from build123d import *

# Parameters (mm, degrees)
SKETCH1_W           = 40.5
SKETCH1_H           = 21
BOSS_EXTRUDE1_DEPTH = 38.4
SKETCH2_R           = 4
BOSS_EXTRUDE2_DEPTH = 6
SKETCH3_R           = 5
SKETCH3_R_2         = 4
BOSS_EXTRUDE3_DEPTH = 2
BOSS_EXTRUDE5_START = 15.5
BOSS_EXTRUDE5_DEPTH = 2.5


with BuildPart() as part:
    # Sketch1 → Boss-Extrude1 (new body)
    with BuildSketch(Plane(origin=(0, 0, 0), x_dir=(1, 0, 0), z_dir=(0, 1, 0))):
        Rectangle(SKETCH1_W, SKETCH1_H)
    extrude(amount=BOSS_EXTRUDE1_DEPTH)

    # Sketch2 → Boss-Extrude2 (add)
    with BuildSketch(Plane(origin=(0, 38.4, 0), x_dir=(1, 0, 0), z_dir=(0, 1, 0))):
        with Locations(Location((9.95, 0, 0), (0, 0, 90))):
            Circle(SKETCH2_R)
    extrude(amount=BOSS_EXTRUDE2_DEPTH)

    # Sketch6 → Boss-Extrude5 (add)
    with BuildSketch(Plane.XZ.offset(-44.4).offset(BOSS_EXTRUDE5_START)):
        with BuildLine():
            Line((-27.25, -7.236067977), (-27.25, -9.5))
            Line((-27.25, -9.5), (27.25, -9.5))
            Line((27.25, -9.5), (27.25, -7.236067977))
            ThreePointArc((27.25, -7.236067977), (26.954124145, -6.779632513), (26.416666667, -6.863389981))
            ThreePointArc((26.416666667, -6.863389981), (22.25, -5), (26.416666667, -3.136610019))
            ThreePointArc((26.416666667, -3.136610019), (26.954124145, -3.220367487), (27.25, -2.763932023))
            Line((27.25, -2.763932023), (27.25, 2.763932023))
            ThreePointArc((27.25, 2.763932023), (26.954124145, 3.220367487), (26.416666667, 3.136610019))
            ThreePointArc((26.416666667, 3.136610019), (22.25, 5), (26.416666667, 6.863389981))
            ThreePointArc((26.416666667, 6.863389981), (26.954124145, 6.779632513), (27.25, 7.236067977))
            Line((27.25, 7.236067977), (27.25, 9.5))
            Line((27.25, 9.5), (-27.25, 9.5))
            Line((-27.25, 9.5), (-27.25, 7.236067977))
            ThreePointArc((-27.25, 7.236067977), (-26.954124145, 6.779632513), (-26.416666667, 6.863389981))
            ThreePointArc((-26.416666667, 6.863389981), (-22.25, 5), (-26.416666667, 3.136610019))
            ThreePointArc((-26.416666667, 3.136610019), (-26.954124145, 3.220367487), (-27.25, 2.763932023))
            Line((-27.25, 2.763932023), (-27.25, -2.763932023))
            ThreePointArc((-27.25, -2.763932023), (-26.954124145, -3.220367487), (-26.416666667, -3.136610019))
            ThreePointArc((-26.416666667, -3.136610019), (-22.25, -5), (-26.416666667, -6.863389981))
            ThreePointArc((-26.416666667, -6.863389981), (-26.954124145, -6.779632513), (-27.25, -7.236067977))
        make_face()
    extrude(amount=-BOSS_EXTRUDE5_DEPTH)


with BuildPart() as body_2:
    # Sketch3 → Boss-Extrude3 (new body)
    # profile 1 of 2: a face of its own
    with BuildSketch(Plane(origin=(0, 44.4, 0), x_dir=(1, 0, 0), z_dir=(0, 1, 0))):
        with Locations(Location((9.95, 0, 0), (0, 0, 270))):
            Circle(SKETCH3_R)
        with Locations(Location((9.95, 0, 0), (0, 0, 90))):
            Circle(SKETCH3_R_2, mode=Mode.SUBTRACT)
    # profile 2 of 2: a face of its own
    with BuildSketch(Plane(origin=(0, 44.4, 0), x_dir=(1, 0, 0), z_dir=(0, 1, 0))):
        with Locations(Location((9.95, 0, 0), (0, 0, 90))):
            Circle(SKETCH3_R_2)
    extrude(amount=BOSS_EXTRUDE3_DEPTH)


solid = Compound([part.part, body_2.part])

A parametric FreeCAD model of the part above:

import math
import FreeCAD as App
import Part
import Sketcher
from FreeCAD import Vector

doc = App.newDocument("Part")
body = doc.addObject("PartDesign::Body", "Body")

sketch1 = doc.addObject("Sketcher::SketchObject", "Sketch")
body.addObject(sketch1)
sketch1.AttachmentSupport = (doc.XZ_Plane, [""])
sketch1.MapMode = "FlatFace"
sketch1.addGeometry([
    Part.LineSegment(Vector(-20, -10, 0), Vector(-20, 10, 0)),
    Part.LineSegment(Vector(-20, 10, 0), Vector(20, 10, 0)),
    Part.LineSegment(Vector(20, 10, 0), Vector(20, -10, 0)),
    Part.LineSegment(Vector(20, -10, 0), Vector(-20, -10, 0)),
], False)
sketch1.addConstraint([
    Sketcher.Constraint("Coincident", 0, 2, 1, 1),
    Sketcher.Constraint("Coincident", 1, 2, 2, 1),
    Sketcher.Constraint("Coincident", 2, 2, 3, 1),
    Sketcher.Constraint("Coincident", 3, 2, 0, 1),
    Sketcher.Constraint("Vertical", 0),
    Sketcher.Constraint("Horizontal", 1),
    Sketcher.Constraint("Vertical", 2),
    Sketcher.Constraint("Horizontal", 3),
    Sketcher.Constraint("Symmetric", 0, 2, 2, 2, -1, 1),
    Sketcher.Constraint("DistanceY", 0, 1, 0, 2, 21.0),
    Sketcher.Constraint("DistanceX", 1, 1, 1, 2, 40.5),
])
pad1 = doc.addObject("PartDesign::Pad", "Pad")
body.addObject(pad1)
pad1.Profile = sketch1
pad1.Length = 38.4
pad1.Reversed = True

sketch2 = doc.addObject("Sketcher::SketchObject", "Sketch001")
body.addObject(sketch2)
sketch2.AttachmentSupport = (doc.XZ_Plane, [""])
sketch2.MapMode = "FlatFace"
sketch2.AttachmentOffset = App.Placement(Vector(0, 0, -38.4), App.Rotation())
sketch2.addGeometry(Part.Circle(Vector(9.9, 0, 0), Vector(0, 0, 1), 4), False)
sketch2.addConstraint([
    Sketcher.Constraint("PointOnObject", 0, 3, -1),
    Sketcher.Constraint("Diameter", 0, 8.0),
    Sketcher.Constraint("DistanceX", -1, 1, 0, 3, 9.95),
])
pad2 = doc.addObject("PartDesign::Pad", "Pad001")
body.addObject(pad2)
pad2.Profile = sketch2
pad2.Length = 6
pad2.Reversed = True

sketch3 = doc.addObject("Sketcher::SketchObject", "Sketch002")
body.addObject(sketch3)
sketch3.AttachmentSupport = (doc.XZ_Plane, [""])
sketch3.MapMode = "FlatFace"
sketch3.AttachmentOffset = App.Placement(Vector(0, 0, -28.9), App.Rotation())
sketch3.addGeometry([
    Part.LineSegment(Vector(-27.2, -7.2, 0), Vector(-27.2, -9.5, 0)),
    Part.LineSegment(Vector(-27.2, -9.5, 0), Vector(27.2, -9.5, 0)),
    Part.LineSegment(Vector(27.2, -9.5, 0), Vector(27.2, -7.2, 0)),
    Part.ArcOfCircle(Part.Circle(Vector(26.8, -7.2, 0), Vector(0, 0, 1), 0.5), math.radians(0), math.radians(132)),
    Part.ArcOfCircle(Part.Circle(Vector(24.8, -5, 0), Vector(0, 0, 1), 2.5), math.radians(48), math.radians(312)),
    Part.ArcOfCircle(Part.Circle(Vector(26.8, -2.8, 0), Vector(0, 0, 1), 0.5), math.radians(-132), math.radians(0)),
    Part.LineSegment(Vector(27.2, -2.8, 0), Vector(27.2, 2.8, 0)),
    Part.ArcOfCircle(Part.Circle(Vector(26.8, 2.8, 0), Vector(0, 0, 1), 0.5), math.radians(0), math.radians(132)),
    Part.ArcOfCircle(Part.Circle(Vector(24.8, 5, 0), Vector(0, 0, 1), 2.5), math.radians(48), math.radians(312)),
    Part.ArcOfCircle(Part.Circle(Vector(26.8, 7.2, 0), Vector(0, 0, 1), 0.5), math.radians(-132), math.radians(0)),
    Part.LineSegment(Vector(27.2, 7.2, 0), Vector(27.2, 9.5, 0)),
    Part.LineSegment(Vector(27.2, 9.5, 0), Vector(-27.2, 9.5, 0)),
    Part.LineSegment(Vector(-27.2, 9.5, 0), Vector(-27.2, 7.2, 0)),
    Part.ArcOfCircle(Part.Circle(Vector(-26.8, 7.2, 0), Vector(0, 0, 1), 0.5), math.radians(-180), math.radians(-48)),
    Part.ArcOfCircle(Part.Circle(Vector(-24.8, 5, 0), Vector(0, 0, 1), 2.5), math.radians(-132), math.radians(132)),
    Part.ArcOfCircle(Part.Circle(Vector(-26.8, 2.8, 0), Vector(0, 0, 1), 0.5), math.radians(48), math.radians(180)),
    Part.LineSegment(Vector(-27.2, 2.8, 0), Vector(-27.2, -2.8, 0)),
    Part.ArcOfCircle(Part.Circle(Vector(-26.8, -2.8, 0), Vector(0, 0, 1), 0.5), math.radians(-180), math.radians(-48)),
    Part.ArcOfCircle(Part.Circle(Vector(-24.8, -5, 0), Vector(0, 0, 1), 2.5), math.radians(-132), math.radians(132)),
    Part.ArcOfCircle(Part.Circle(Vector(-26.8, -7.2, 0), Vector(0, 0, 1), 0.5), math.radians(48), math.radians(180)),
], False)
sketch3.addConstraint([
    Sketcher.Constraint("Coincident", 0, 2, 1, 1),
    Sketcher.Constraint("Coincident", 1, 2, 2, 1),
    Sketcher.Constraint("Tangent", 2, 2, 3, 1),
    Sketcher.Constraint("Tangent", 3, 2, 4, 2),
    Sketcher.Constraint("Tangent", 4, 1, 5, 1),
    Sketcher.Constraint("Tangent", 5, 2, 6, 1),
    Sketcher.Constraint("Tangent", 6, 2, 7, 1),
    Sketcher.Constraint("Tangent", 7, 2, 8, 2),
    Sketcher.Constraint("Tangent", 8, 1, 9, 1),
    Sketcher.Constraint("Tangent", 9, 2, 10, 1),
    Sketcher.Constraint("Coincident", 10, 2, 11, 1),
    Sketcher.Constraint("Coincident", 11, 2, 12, 1),
    Sketcher.Constraint("Tangent", 12, 2, 13, 1),
    Sketcher.Constraint("Tangent", 13, 2, 14, 2),
    Sketcher.Constraint("Tangent", 14, 1, 15, 1),
    Sketcher.Constraint("Tangent", 15, 2, 16, 1),
    Sketcher.Constraint("Tangent", 16, 2, 17, 1),
    Sketcher.Constraint("Tangent", 17, 2, 18, 2),
    Sketcher.Constraint("Tangent", 18, 1, 19, 1),
    Sketcher.Constraint("Tangent", 19, 2, 0, 1),
    Sketcher.Constraint("Vertical", 0),
    Sketcher.Constraint("Horizontal", 1),
    Sketcher.Constraint("Vertical", 2),
    Sketcher.Constraint("Vertical", 6),
    Sketcher.Constraint("Vertical", 10),
    Sketcher.Constraint("Horizontal", 11),
    Sketcher.Constraint("Vertical", 12),
    Sketcher.Constraint("Vertical", 16),
    Sketcher.Constraint("Equal", 3, 5),
    Sketcher.Constraint("Equal", 5, 7),
    Sketcher.Constraint("Equal", 4, 8),
    Sketcher.Constraint("Equal", 7, 9),
    Sketcher.Constraint("Equal", 9, 13),
    Sketcher.Constraint("Equal", 8, 14),
    Sketcher.Constraint("Equal", 13, 15),
    Sketcher.Constraint("Equal", 15, 17),
    Sketcher.Constraint("Equal", 14, 18),
    Sketcher.Constraint("Equal", 17, 19),
    Sketcher.Constraint("Symmetric", 3, 3, 13, 3, -1, 1),
    Sketcher.Constraint("Symmetric", 5, 3, 15, 3, -1, 1),
    Sketcher.Constraint("Symmetric", 8, 3, 18, 3, -1, 1),
    Sketcher.Constraint("Symmetric", 0, 2, 10, 2, -1, 1),
    Sketcher.Constraint("Symmetric", 9, 3, 13, 3, -2),
    Sketcher.Constraint("Horizontal", 8, 3, 14, 3),
    Sketcher.Constraint("Vertical", 3, 3, 5, 3),
    Sketcher.Constraint("Radius", 3, 0.5),
    Sketcher.Constraint("Radius", 4, 2.5),
    Sketcher.Constraint("DistanceX", 1, 1, 1, 2, 54.5),
    Sketcher.Constraint("DistanceY", 4, 3, -1, 1, 5.0),
    Sketcher.Constraint("DistanceX", 4, 3, 3, 3, 2.0),
    Sketcher.Constraint("DistanceY", 0, 2, -1, 1, 9.5),
])
pad3 = doc.addObject("PartDesign::Pad", "Pad002")
body.addObject(pad3)
pad3.Profile = sketch3
pad3.Length = 2.5
pad3.Reversed = True
body2 = doc.addObject("PartDesign::Body", "Body001")

sketch4 = doc.addObject("Sketcher::SketchObject", "Sketch003")
body2.addObject(sketch4)
sketch4.AttachmentSupport = (doc.getObject("XZ_Plane001"), [""])
sketch4.MapMode = "FlatFace"
sketch4.AttachmentOffset = App.Placement(Vector(0, 0, -44.4), App.Rotation())
sketch4.addGeometry(Part.Circle(Vector(10, 0, 0), Vector(0, 0, 1), 5), False)
sketch4.addConstraint([
    Sketcher.Constraint("PointOnObject", 0, 3, -1),
    Sketcher.Constraint("Diameter", 0, 10.0),
    Sketcher.Constraint("DistanceX", -1, 1, 0, 3, 9.95),
])
pad4 = doc.addObject("PartDesign::Pad", "Pad003")
body2.addObject(pad4)
pad4.Profile = sketch4
pad4.Length = 2
pad4.Reversed = True

doc.recompute()
